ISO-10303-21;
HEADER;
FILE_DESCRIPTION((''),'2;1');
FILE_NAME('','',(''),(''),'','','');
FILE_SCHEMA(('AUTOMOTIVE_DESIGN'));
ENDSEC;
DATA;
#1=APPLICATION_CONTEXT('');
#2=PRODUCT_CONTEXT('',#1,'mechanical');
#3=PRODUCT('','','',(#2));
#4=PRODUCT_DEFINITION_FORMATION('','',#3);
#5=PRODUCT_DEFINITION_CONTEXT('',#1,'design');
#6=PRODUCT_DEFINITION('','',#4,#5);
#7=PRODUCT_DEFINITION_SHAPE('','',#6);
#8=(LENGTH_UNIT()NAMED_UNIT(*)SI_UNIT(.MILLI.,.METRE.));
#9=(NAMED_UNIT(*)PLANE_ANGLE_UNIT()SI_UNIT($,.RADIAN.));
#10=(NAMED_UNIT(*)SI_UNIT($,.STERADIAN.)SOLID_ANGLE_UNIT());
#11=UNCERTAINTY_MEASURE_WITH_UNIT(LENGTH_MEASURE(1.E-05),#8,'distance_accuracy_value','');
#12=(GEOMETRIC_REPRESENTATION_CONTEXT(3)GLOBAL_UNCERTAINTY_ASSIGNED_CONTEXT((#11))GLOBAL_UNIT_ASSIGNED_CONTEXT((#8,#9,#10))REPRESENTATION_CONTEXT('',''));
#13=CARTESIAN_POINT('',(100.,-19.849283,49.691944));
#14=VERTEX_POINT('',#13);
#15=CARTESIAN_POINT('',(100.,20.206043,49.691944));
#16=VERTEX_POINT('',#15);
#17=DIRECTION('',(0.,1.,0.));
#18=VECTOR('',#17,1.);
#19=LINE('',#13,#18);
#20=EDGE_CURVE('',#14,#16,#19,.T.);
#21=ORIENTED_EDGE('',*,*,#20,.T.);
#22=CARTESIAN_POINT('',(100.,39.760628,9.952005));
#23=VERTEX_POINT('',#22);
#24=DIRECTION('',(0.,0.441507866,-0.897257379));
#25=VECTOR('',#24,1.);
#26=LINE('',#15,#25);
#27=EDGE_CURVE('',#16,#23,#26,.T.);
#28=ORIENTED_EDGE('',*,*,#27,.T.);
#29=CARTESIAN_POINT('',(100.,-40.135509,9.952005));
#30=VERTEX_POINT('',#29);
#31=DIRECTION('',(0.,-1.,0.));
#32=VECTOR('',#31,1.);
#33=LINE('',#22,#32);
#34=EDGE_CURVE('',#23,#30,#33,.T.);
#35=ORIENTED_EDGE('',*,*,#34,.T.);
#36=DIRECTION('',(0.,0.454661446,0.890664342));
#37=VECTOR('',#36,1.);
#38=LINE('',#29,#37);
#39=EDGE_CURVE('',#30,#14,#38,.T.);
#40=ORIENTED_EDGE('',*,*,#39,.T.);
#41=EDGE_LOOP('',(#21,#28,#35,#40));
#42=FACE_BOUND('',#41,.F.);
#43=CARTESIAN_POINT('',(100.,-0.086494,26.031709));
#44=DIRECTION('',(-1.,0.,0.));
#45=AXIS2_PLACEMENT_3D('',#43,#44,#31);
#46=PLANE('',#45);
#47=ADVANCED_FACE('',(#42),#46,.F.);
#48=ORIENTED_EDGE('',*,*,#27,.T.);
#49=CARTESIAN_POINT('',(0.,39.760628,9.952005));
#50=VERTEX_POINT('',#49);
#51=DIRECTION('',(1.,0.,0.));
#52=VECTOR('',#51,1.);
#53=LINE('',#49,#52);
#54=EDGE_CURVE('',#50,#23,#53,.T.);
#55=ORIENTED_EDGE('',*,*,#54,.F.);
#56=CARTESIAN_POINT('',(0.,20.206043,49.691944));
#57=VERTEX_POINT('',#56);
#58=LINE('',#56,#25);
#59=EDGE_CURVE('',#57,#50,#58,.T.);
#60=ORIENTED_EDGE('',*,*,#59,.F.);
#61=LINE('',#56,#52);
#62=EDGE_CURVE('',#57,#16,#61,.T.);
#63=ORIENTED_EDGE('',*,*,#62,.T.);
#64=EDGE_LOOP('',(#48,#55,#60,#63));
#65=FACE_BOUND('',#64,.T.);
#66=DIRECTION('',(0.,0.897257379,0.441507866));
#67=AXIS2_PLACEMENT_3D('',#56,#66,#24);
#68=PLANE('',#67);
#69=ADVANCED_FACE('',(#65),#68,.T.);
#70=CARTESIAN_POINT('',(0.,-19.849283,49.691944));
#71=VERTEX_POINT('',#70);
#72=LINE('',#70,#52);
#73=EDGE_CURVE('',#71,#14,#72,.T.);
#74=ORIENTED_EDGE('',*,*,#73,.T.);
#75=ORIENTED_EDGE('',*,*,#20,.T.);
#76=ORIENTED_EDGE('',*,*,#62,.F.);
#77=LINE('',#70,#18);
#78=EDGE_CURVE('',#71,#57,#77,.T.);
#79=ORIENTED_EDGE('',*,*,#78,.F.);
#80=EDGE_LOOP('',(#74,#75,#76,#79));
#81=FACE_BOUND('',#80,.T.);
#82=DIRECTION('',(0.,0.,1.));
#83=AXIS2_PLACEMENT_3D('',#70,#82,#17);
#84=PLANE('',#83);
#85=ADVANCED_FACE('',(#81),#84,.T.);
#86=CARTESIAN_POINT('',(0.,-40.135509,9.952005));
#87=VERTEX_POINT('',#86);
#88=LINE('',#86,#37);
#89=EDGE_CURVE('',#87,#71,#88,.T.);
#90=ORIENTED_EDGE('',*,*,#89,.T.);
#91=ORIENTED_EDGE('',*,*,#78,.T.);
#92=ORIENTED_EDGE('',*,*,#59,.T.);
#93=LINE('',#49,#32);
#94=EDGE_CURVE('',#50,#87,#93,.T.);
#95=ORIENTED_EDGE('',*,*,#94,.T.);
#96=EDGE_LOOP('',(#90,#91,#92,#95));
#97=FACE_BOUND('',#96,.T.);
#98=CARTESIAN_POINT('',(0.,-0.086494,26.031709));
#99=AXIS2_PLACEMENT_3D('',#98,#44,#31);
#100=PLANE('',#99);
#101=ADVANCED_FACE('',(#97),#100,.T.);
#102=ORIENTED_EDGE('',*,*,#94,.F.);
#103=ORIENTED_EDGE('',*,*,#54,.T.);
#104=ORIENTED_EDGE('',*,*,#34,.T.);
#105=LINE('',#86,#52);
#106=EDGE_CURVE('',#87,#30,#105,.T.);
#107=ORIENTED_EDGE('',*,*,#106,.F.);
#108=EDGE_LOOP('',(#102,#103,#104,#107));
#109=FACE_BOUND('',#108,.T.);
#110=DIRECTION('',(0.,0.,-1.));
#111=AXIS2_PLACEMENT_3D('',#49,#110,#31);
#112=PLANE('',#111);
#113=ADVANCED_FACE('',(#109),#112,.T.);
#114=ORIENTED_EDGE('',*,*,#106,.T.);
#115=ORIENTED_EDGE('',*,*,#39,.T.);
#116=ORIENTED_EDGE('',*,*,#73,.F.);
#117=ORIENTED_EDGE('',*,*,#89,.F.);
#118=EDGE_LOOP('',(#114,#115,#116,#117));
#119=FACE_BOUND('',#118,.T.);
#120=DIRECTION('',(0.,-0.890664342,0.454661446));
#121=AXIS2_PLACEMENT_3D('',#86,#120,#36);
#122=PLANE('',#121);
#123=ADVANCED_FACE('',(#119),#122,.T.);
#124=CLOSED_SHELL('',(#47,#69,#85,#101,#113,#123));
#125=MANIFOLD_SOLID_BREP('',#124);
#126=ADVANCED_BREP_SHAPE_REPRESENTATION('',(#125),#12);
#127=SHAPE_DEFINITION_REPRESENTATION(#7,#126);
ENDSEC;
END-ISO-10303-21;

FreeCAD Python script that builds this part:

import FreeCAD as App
import Part
import Sketcher
from FreeCAD import Vector
Q = App.Units.Quantity


def add_polygon(sketch, points):
    """Adds a closed chain of lines whose ends are joined by coincident constraints."""
    first, n = sketch.GeometryCount, len(points)
    for a, b in zip(points, points[1:] + points[:1]):
        sketch.addGeometry(Part.LineSegment(App.Vector(*a, 0), App.Vector(*b, 0)), False)
    for i in range(n):
        sketch.addConstraint(Sketcher.Constraint("Coincident", first + i, 2, first + (i + 1) % n, 1))

doc = App.newDocument("Part")
params = doc.addObject("Spreadsheet::Sheet", "Params")
for row, (alias, value) in enumerate([
    ("pad1_length", "100 mm"),
], start=1):
    params.set(f"A{row}", alias)
    params.set(f"B{row}", "=" + value)
    params.setAlias(f"B{row}", alias)

body = doc.addObject("PartDesign::Body", "Body")

sketch1 = doc.addObject("Sketcher::SketchObject", "Sketch")
body.addObject(sketch1)
sketch1.AttachmentSupport = (doc.YZ_Plane, [""])
sketch1.MapMode = "FlatFace"
add_polygon(sketch1, [(-20, 50), (-40, 10), (40, 10), (20, 50)])
sketch1.addConstraint(Sketcher.Constraint("Horizontal", 1))
sketch1.addConstraint(Sketcher.Constraint("Horizontal", 3))
sketch1.addConstraint(Sketcher.Constraint("Distance", 0, Q("44.618311 mm")))
sketch1.addConstraint(Sketcher.Constraint("DistanceX", 1, 1, 1, 2, Q("79.896137 mm")))
sketch1.addConstraint(Sketcher.Constraint("DistanceX", 3, 2, 3, 1, Q("40.055326 mm")))
sketch1.addConstraint(Sketcher.Constraint("DistanceX", 0, 2, -1, 1, Q("40.135509 mm")))
sketch1.addConstraint(Sketcher.Constraint("DistanceY", 1, 2, 2, 2, Q("39.739939 mm")))
sketch1.addConstraint(Sketcher.Constraint("DistanceY", -1, 1, 0, 2, Q("9.952005 mm")))
pad1 = doc.addObject("PartDesign::Pad", "Pad")
body.addObject(pad1)
pad1.Profile = sketch1
pad1.setExpression("Length", "Params.pad1_length")

doc.recompute()
